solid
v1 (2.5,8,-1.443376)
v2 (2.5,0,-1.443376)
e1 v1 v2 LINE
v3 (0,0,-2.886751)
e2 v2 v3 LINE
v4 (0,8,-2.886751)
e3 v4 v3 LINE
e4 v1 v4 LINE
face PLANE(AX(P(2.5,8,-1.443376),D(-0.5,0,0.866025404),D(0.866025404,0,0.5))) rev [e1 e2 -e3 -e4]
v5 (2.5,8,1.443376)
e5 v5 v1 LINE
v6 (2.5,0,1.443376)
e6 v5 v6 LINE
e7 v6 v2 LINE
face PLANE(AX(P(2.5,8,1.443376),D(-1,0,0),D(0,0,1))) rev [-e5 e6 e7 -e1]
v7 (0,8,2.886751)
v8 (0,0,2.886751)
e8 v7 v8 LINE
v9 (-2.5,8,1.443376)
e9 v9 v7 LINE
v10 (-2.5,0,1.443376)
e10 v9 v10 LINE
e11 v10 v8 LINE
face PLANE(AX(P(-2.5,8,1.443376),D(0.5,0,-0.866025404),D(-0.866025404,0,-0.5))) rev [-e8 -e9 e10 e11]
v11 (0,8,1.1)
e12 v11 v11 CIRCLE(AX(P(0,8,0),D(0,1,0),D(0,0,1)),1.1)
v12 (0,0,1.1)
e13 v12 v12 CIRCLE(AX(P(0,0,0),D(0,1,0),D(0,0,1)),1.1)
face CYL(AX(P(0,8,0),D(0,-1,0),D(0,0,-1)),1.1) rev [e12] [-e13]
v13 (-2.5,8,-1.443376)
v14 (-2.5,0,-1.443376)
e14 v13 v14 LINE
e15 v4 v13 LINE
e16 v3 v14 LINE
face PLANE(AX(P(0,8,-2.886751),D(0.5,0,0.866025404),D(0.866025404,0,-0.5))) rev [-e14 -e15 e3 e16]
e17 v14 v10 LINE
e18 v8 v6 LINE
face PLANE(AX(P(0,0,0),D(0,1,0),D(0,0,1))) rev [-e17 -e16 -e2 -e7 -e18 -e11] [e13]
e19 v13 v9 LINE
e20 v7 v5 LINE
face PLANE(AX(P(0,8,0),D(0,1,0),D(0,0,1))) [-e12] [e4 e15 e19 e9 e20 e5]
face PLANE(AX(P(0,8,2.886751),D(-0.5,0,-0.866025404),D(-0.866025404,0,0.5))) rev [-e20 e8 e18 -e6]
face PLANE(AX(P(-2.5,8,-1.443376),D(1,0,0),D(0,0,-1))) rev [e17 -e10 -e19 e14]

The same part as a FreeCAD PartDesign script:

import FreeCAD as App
import Part
import Sketcher
from FreeCAD import Vector
Q = App.Units.Quantity

doc = App.newDocument("Part")
body = doc.addObject("PartDesign::Body", "Body")

# Sketch on XZ plane
sketch1 = body.newObject("Sketcher::SketchObject", "Sketch")
sketch1.AttachmentSupport = (doc.getObject("XZ_Plane"), [""])
sketch1.MapMode = "FlatFace"
sketch1.addGeometry([
    Part.LineSegment(Vector(0, -2.9, 0), Vector(-2.5, -1.4, 0)),  # 0
    Part.LineSegment(Vector(-2.5, -1.4, 0), Vector(-2.5, 1.4, 0)),  # 1
    Part.LineSegment(Vector(-2.5, 1.4, 0), Vector(0, 2.9, 0)),  # 2
    Part.LineSegment(Vector(0, 2.9, 0), Vector(2.5, 1.4, 0)),  # 3
    Part.LineSegment(Vector(2.5, 1.4, 0), Vector(2.5, -1.4, 0)),  # 4
    Part.LineSegment(Vector(2.5, -1.4, 0), Vector(0, -2.9, 0)),  # 5
    Part.Circle(Vector(0, 0, 0), Vector(0, 0, 1), 1.1),  # 6
], False)
sketch1.addConstraint([
    Sketcher.Constraint("Coincident", 0, 2, 1, 1),
    Sketcher.Constraint("Coincident", 1, 2, 2, 1),
    Sketcher.Constraint("Coincident", 2, 2, 3, 1),
    Sketcher.Constraint("Coincident", 3, 2, 4, 1),
    Sketcher.Constraint("Coincident", 4, 2, 5, 1),
    Sketcher.Constraint("Coincident", 5, 2, 0, 1),
    Sketcher.Constraint("Vertical", 1),
    Sketcher.Constraint("Vertical", 4),
    Sketcher.Constraint("Coincident", 6, 3, -1, 1),
    Sketcher.Constraint("Symmetric", 0, 2, 3, 2, -1, 1),
    Sketcher.Constraint("Symmetric", 2, 2, 5, 2, -1, 1),
    Sketcher.Constraint("PointOnObject", 2, 2, -2),
    Sketcher.Constraint("Parallel", 2, 5),
    Sketcher.Constraint("Horizontal", 1, 2, 3, 2),
    Sketcher.Constraint("Diameter", 6, Q("2.2 mm")),
    Sketcher.Constraint("Angle", 0, Q("150 deg")),
    Sketcher.Constraint("DistanceX", 1, 2, 3, 2, Q("5 mm")),
    Sketcher.Constraint("DistanceY", 1, 1, 1, 2, Q("2.886751 mm")),
])
pad1 = body.newObject("PartDesign::Pad", "Pad")
pad1.Profile = sketch1
pad1.Length = 8
pad1.Reversed = True

doc.recompute()
